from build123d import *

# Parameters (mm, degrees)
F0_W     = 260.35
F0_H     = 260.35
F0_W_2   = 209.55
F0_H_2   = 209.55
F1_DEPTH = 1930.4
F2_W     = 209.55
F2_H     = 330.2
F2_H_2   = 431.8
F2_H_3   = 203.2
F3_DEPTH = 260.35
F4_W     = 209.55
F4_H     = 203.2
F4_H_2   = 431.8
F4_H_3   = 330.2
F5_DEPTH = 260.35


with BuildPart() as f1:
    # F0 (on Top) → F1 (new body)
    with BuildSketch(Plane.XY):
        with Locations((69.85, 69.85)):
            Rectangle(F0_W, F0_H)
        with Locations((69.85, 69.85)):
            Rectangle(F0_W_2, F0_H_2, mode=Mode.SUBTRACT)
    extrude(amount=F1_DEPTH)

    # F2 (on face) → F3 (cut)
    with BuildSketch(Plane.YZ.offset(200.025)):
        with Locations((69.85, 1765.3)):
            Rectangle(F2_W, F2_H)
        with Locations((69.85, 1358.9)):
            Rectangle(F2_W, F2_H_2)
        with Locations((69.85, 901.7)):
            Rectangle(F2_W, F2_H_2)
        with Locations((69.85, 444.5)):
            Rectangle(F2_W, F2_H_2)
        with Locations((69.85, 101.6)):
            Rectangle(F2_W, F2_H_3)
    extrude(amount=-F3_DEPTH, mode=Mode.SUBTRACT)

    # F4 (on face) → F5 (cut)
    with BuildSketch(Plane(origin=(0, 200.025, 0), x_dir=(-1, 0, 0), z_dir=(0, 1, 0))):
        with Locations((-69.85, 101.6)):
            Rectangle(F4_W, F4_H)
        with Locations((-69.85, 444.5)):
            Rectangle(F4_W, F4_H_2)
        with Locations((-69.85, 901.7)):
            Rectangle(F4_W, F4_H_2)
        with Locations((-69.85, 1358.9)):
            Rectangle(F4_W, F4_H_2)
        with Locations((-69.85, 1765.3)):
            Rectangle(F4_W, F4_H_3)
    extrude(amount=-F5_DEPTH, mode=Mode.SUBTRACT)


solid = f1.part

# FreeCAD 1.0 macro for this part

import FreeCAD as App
import Part
import Sketcher
Q = App.Units.Quantity


def add_polygon(sketch, points):
    """Adds a closed chain of lines whose ends are joined by coincident constraints."""
    first, n = sketch.GeometryCount, len(points)
    for a, b in zip(points, points[1:] + points[:1]):
        sketch.addGeometry(Part.LineSegment(App.Vector(*a, 0), App.Vector(*b, 0)), False)
    for i in range(n):
        sketch.addConstraint(Sketcher.Constraint("Coincident", first + i, 2, first + (i + 1) % n, 1))

doc = App.newDocument("Part")
body = doc.addObject("PartDesign::Body", "Body")

# Sketch on XY plane
sketch1 = body.newObject("Sketcher::SketchObject", "Sketch")
sketch1.AttachmentSupport = (doc.getObject("XY_Plane"), [""])
sketch1.MapMode = "FlatFace"
add_polygon(sketch1, [(-60, 200), (-60, -60), (200, -60), (200, 200)])  # lines 0-3
add_polygon(sketch1, [(175, -35), (-35, -35), (-35, 175), (175, 175)])  # lines 4-7
sketch1.addConstraint([
    Sketcher.Constraint("Vertical", 0),
    Sketcher.Constraint("Horizontal", 1),
    Sketcher.Constraint("Vertical", 2),
    Sketcher.Constraint("Horizontal", 3),
    Sketcher.Constraint("Horizontal", 4),
    Sketcher.Constraint("Vertical", 5),
    Sketcher.Constraint("Horizontal", 6),
    Sketcher.Constraint("Vertical", 7),
    Sketcher.Constraint("Equal", 3, 0),
    Sketcher.Constraint("Equal", 6, 5),
    Sketcher.Constraint("DistanceX", 0, 2, 4, 2, Q("1 in")),
    Sketcher.Constraint("DistanceY", 0, 2, 4, 2, Q("1 in")),
    Sketcher.Constraint("DistanceY", 5, 2, 3, 2, Q("1 in")),
    Sketcher.Constraint("DistanceX", 1, 1, 1, 2, Q("10.25 in")),
    Sketcher.Constraint("DistanceX", 0, 2, -1, 1, Q("2.375 in")),
    Sketcher.Constraint("DistanceY", 0, 2, -1, 1, Q("2.375 in")),
])
pad1 = body.newObject("PartDesign::Pad", "Pad")
pad1.Profile = sketch1
pad1.Length = Q("76 in")

# Sketch on YZ plane
sketch2 = body.newObject("Sketcher::SketchObject", "Sketch001")
sketch2.AttachmentSupport = (doc.getObject("YZ_Plane"), [""])
sketch2.MapMode = "FlatFace"
sketch2.AttachmentOffset = App.Placement(App.Vector(0, 0, 7.875 * 25.4), App.Rotation())
add_polygon(sketch2, [(-35, 1930), (-35, 1600), (175, 1600), (175, 1930)])  # lines 0-3
add_polygon(sketch2, [(-35, 1575), (-35, 1143), (175, 1143), (175, 1575)])  # lines 4-7
add_polygon(sketch2, [(-35, 1118), (-35, 686), (175, 686), (175, 1118)])  # lines 8-11
add_polygon(sketch2, [(-35, 660), (-35, 229), (175, 229), (175, 660)])  # lines 12-15
add_polygon(sketch2, [(-35, 203), (-35, 0), (175, 0), (175, 203)])  # lines 16-19
sketch2.addConstraint([
    Sketcher.Constraint("Vertical", 0),
    Sketcher.Constraint("Horizontal", 1),
    Sketcher.Constraint("Vertical", 2),
    Sketcher.Constraint("Horizontal", 3),
    Sketcher.Constraint("Vertical", 4),
    Sketcher.Constraint("Horizontal", 5),
    Sketcher.Constraint("Vertical", 6),
    Sketcher.Constraint("Horizontal", 7),
    Sketcher.Constraint("Vertical", 8),
    Sketcher.Constraint("Horizontal", 9),
    Sketcher.Constraint("Vertical", 10),
    Sketcher.Constraint("Horizontal", 11),
    Sketcher.Constraint("Vertical", 12),
    Sketcher.Constraint("Horizontal", 13),
    Sketcher.Constraint("Vertical", 14),
    Sketcher.Constraint("Horizontal", 15),
    Sketcher.Constraint("Vertical", 16),
    Sketcher.Constraint("Horizontal", 17),
    Sketcher.Constraint("Vertical", 18),
    Sketcher.Constraint("Horizontal", 19),
    Sketcher.Constraint("PointOnObject", 16, 2, -1),
    Sketcher.Constraint("Vertical", 3, 2, 4, 2),
    Sketcher.Constraint("Vertical", 2, 2, 5, 2),
    Sketcher.Constraint("Vertical", 7, 2, 8, 2),
    Sketcher.Constraint("Vertical", 6, 2, 9, 2),
    Sketcher.Constraint("Vertical", 11, 2, 12, 2),
    Sketcher.Constraint("Vertical", 10, 2, 13, 2),
    Sketcher.Constraint("Vertical", 15, 2, 16, 2),
    Sketcher.Constraint("Vertical", 14, 2, 17, 2),
    Sketcher.Constraint("Equal", 6, 8),
    Sketcher.Constraint("Equal", 10, 12),
    Sketcher.Constraint("DistanceY", 0, 2, 0, 1, Q("13 in")),
    Sketcher.Constraint("DistanceY", 4, 2, 4, 1, Q("17 in")),
    Sketcher.Constraint("DistanceY", 16, 2, 16, 1, Q("8 in")),
    Sketcher.Constraint("DistanceY", -1, 1, 0, 2, Q("63 in")),
    Sketcher.Constraint("DistanceY", -1, 1, 4, 2, Q("45 in")),
    Sketcher.Constraint("DistanceY", -1, 1, 8, 2, Q("27 in")),
    Sketcher.Constraint("DistanceY", -1, 1, 12, 2, Q("9 in")),
    Sketcher.Constraint("DistanceX", 1, 1, 1, 2, Q("8.25 in")),
    Sketcher.Constraint("DistanceX", 0, 2, -1, 1, Q("1.375 in")),
])
pocket1 = body.newObject("PartDesign::Pocket", "Pocket")
pocket1.Profile = sketch2
pocket1.Length = Q("10.25 in")

# Sketch on XZ plane
sketch3 = body.newObject("Sketcher::SketchObject", "Sketch002")
sketch3.AttachmentSupport = (doc.getObject("XZ_Plane"), [""])
sketch3.MapMode = "FlatFace"
sketch3.AttachmentOffset = App.Placement(App.Vector(0, 0, -7.875 * 25.4), App.Rotation())
add_polygon(sketch3, [(175, 203), (175, 0), (-35, 0), (-35, 203)])  # lines 0-3
add_polygon(sketch3, [(175, 660), (175, 229), (-35, 229), (-35, 660)])  # lines 4-7
add_polygon(sketch3, [(175, 1118), (175, 686), (-35, 686), (-35, 1118)])  # lines 8-11
add_polygon(sketch3, [(175, 1575), (175, 1143), (-35, 1143), (-35, 1575)])  # lines 12-15
add_polygon(sketch3, [(175, 1930), (175, 1600), (-35, 1600), (-35, 1930)])  # lines 16-19
sketch3.addConstraint([
    Sketcher.Constraint("Vertical", 0),
    Sketcher.Constraint("Horizontal", 1),
    Sketcher.Constraint("Vertical", 2),
    Sketcher.Constraint("Horizontal", 3),
    Sketcher.Constraint("Vertical", 4),
    Sketcher.Constraint("Horizontal", 5),
    Sketcher.Constraint("Vertical", 6),
    Sketcher.Constraint("Horizontal", 7),
    Sketcher.Constraint("Vertical", 8),
    Sketcher.Constraint("Horizontal", 9),
    Sketcher.Constraint("Vertical", 10),
    Sketcher.Constraint("Horizontal", 11),
    Sketcher.Constraint("Vertical", 12),
    Sketcher.Constraint("Horizontal", 13),
    Sketcher.Constraint("Vertical", 14),
    Sketcher.Constraint("Horizontal", 15),
    Sketcher.Constraint("Vertical", 16),
    Sketcher.Constraint("Horizontal", 17),
    Sketcher.Constraint("Vertical", 18),
    Sketcher.Constraint("Horizontal", 19),
    Sketcher.Constraint("PointOnObject", 0, 2, -1),
    Sketcher.Constraint("Vertical", 3, 2, 4, 2),
    Sketcher.Constraint("Vertical", 2, 2, 5, 2),
    Sketcher.Constraint("Vertical", 7, 2, 8, 2),
    Sketcher.Constraint("Vertical", 6, 2, 9, 2),
    Sketcher.Constraint("Vertical", 11, 2, 12, 2),
    Sketcher.Constraint("Vertical", 10, 2, 13, 2),
    Sketcher.Constraint("Vertical", 15, 2, 16, 2),
    Sketcher.Constraint("Vertical", 14, 2, 17, 2),
    Sketcher.Constraint("Equal", 6, 8),
    Sketcher.Constraint("Equal", 10, 12),
    Sketcher.Constraint("DistanceY", 0, 2, 0, 1, Q("8 in")),
    Sketcher.Constraint("DistanceY", 4, 2, 4, 1, Q("17 in")),
    Sketcher.Constraint("DistanceY", 16, 2, 16, 1, Q("13 in")),
    Sketcher.Constraint("DistanceY", -1, 1, 4, 2, Q("9 in")),
    Sketcher.Constraint("DistanceY", -1, 1, 8, 2, Q("27 in")),
    Sketcher.Constraint("DistanceY", -1, 1, 12, 2, Q("45 in")),
    Sketcher.Constraint("DistanceY", -1, 1, 16, 2, Q("63 in")),
    Sketcher.Constraint("DistanceX", 1, 2, 1, 1, Q("8.25 in")),
    Sketcher.Constraint("DistanceX", -1, 1, 0, 2, Q("6.875 in")),
])
pocket2 = body.newObject("PartDesign::Pocket", "Pocket001")
pocket2.Profile = sketch3
pocket2.Length = Q("10.25 in")
pocket2.Reversed = True

doc.recompute()
